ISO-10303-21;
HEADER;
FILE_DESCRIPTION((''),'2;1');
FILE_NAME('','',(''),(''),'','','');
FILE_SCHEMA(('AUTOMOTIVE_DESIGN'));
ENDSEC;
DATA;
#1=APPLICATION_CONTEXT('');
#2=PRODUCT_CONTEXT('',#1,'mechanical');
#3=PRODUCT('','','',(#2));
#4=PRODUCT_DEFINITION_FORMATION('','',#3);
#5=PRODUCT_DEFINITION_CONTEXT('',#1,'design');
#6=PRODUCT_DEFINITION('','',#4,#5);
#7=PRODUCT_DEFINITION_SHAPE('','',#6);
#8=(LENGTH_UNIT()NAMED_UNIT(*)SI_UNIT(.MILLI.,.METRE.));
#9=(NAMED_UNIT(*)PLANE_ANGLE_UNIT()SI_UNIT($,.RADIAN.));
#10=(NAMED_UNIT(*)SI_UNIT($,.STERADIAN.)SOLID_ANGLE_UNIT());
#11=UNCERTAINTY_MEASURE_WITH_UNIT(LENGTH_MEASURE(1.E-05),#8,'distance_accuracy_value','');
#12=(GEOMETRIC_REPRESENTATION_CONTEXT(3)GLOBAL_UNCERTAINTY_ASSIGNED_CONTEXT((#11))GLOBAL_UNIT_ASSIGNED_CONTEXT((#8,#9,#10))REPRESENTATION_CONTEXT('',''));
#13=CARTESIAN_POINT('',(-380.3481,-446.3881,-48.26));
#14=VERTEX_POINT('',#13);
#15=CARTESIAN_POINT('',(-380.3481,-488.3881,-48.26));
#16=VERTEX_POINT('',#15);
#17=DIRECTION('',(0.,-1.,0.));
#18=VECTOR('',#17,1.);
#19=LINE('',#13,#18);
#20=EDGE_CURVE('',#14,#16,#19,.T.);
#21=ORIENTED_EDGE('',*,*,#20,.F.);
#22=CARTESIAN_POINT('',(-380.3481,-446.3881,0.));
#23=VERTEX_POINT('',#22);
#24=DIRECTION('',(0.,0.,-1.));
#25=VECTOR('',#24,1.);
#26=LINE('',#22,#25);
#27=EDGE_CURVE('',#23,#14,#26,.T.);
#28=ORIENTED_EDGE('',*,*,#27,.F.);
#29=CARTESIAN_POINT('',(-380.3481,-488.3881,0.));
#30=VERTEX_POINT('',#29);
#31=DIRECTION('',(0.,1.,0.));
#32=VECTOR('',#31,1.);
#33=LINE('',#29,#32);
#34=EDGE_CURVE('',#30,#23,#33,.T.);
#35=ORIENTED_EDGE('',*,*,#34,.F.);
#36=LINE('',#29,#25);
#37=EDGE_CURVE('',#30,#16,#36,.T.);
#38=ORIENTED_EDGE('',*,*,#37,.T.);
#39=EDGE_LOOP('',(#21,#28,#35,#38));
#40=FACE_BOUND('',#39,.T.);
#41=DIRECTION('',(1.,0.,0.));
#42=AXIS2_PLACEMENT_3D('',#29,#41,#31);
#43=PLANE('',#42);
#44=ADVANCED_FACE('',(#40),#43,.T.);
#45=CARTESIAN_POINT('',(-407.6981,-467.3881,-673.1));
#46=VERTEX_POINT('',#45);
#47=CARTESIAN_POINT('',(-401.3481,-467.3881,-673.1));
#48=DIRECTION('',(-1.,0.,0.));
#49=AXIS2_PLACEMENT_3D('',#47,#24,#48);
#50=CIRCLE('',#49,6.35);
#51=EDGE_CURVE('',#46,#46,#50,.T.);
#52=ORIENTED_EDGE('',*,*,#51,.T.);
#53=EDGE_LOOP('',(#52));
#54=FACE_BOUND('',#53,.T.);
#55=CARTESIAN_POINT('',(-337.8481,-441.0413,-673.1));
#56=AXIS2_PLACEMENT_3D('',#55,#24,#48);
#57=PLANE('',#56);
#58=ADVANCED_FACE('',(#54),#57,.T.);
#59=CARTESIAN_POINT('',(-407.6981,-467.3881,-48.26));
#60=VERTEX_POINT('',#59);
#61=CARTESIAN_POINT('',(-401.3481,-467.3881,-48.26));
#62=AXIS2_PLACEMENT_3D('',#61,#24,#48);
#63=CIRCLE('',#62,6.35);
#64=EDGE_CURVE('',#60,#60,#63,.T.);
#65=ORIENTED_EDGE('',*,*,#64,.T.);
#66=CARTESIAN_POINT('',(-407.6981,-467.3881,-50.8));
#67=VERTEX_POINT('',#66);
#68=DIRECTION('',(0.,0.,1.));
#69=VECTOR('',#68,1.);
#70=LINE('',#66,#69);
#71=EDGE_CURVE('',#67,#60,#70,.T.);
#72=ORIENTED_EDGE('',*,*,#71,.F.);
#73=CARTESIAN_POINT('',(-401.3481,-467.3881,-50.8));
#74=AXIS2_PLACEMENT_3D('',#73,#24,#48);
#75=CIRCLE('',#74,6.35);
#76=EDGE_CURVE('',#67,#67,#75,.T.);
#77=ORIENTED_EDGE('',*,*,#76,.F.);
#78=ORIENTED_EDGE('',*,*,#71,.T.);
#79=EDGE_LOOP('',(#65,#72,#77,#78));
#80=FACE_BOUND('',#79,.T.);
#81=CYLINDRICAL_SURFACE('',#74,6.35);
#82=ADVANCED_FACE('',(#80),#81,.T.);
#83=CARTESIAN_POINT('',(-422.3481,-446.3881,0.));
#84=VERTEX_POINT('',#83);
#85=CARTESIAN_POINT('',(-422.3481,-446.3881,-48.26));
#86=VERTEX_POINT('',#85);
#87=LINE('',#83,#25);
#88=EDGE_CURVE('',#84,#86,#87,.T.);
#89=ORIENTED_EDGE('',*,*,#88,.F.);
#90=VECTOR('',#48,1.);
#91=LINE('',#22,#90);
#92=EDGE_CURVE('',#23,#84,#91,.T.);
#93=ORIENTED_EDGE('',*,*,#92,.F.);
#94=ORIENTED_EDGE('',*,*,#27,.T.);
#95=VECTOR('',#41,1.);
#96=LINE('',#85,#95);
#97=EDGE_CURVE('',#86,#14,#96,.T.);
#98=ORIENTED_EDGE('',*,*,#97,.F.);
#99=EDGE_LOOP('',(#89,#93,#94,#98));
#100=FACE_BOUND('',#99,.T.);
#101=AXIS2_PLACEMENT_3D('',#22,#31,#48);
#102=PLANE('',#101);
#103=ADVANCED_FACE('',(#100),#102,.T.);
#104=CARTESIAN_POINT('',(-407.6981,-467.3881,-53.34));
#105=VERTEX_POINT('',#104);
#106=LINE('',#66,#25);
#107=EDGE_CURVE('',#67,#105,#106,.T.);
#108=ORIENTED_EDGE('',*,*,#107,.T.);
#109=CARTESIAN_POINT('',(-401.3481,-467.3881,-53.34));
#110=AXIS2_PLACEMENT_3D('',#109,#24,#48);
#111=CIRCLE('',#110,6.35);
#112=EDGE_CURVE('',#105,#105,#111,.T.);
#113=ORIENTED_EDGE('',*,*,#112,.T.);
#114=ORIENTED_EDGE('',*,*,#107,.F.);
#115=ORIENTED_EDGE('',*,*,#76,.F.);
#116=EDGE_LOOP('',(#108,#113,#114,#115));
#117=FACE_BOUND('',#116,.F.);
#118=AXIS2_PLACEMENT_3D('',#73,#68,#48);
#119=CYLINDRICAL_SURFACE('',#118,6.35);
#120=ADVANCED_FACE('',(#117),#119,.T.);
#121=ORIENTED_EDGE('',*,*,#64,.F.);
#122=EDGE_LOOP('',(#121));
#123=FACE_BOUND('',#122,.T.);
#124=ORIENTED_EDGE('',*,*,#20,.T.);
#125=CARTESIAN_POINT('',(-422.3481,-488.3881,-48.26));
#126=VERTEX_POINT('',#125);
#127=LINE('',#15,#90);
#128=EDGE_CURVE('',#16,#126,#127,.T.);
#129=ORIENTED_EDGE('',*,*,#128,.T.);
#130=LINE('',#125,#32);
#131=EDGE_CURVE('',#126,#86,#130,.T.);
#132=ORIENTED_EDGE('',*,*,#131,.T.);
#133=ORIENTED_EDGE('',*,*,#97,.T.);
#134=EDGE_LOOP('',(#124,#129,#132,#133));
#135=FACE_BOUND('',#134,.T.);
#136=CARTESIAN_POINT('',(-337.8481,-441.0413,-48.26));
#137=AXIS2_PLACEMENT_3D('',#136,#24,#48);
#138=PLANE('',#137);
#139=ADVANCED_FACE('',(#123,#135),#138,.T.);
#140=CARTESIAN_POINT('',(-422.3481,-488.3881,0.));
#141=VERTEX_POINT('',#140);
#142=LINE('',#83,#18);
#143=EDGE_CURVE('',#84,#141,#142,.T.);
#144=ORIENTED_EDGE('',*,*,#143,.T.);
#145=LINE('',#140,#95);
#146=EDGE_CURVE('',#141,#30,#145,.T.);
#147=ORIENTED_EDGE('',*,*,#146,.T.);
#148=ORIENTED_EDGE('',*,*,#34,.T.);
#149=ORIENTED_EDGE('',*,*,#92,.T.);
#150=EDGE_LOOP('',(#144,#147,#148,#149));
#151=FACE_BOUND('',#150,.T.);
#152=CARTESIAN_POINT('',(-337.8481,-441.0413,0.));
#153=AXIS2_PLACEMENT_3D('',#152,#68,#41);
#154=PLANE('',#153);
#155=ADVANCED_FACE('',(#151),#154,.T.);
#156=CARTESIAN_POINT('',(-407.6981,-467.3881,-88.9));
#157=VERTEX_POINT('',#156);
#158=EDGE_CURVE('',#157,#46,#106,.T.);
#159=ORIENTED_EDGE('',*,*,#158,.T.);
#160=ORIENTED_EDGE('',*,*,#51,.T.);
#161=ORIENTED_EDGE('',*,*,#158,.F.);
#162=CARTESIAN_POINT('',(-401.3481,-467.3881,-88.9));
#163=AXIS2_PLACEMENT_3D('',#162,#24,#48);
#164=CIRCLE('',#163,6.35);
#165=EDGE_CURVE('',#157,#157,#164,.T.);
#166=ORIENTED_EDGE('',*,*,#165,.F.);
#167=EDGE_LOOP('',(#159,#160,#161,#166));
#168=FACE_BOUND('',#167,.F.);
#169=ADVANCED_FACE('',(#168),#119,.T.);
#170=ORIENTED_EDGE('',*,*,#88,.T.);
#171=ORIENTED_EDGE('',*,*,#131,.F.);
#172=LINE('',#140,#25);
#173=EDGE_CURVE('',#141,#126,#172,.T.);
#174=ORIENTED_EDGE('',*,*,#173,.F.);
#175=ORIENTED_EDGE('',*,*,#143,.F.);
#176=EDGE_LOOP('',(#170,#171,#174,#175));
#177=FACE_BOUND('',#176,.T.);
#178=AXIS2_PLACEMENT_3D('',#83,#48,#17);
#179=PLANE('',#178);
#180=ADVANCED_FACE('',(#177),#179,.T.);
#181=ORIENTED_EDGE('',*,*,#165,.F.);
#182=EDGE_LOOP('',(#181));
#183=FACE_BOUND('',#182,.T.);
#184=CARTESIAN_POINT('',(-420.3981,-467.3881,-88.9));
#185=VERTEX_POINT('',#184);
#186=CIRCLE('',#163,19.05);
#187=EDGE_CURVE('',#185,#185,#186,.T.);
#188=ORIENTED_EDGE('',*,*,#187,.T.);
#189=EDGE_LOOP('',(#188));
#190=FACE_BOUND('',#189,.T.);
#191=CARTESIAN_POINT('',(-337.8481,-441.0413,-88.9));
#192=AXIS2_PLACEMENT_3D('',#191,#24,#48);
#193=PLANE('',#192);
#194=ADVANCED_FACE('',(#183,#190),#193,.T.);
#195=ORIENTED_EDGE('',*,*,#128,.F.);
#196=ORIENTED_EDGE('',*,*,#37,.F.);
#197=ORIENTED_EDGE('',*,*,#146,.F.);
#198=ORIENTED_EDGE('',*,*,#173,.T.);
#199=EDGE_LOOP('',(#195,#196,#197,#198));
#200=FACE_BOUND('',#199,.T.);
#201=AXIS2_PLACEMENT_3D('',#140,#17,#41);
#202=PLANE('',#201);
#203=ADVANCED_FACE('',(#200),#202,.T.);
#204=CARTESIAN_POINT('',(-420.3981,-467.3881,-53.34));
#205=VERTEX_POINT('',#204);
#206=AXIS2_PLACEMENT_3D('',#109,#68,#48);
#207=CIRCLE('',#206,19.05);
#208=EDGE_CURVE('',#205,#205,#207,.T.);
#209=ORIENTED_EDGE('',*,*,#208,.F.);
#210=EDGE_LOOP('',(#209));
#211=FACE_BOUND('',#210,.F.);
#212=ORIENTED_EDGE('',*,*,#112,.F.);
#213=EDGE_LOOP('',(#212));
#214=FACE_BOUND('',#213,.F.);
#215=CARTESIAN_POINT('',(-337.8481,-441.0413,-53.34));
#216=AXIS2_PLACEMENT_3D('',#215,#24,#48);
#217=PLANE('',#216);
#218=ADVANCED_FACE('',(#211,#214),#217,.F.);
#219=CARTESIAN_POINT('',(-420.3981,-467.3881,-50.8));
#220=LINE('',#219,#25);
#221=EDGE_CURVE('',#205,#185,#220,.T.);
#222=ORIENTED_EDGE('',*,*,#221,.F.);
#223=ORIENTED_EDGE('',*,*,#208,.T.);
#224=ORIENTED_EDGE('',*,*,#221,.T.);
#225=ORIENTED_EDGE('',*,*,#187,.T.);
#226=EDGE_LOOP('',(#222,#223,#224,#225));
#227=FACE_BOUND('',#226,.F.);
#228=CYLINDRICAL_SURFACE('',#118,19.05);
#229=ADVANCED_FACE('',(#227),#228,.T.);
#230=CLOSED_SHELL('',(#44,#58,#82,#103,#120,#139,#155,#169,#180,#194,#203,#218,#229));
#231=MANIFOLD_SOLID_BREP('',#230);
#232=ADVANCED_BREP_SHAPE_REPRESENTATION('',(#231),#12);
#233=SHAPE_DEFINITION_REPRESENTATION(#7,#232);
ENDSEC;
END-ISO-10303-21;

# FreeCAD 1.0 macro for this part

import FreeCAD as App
import Part
import Sketcher
from FreeCAD import Vector
Q = App.Units.Quantity


def add_polygon(sketch, points):
    """Adds a closed chain of lines whose ends are joined by coincident constraints."""
    first, n = sketch.GeometryCount, len(points)
    for a, b in zip(points, points[1:] + points[:1]):
        sketch.addGeometry(Part.LineSegment(App.Vector(*a, 0), App.Vector(*b, 0)), False)
    for i in range(n):
        sketch.addConstraint(Sketcher.Constraint("Coincident", first + i, 2, first + (i + 1) % n, 1))

doc = App.newDocument("Part")
body = doc.addObject("PartDesign::Body", "Body")

sketch1 = body.newObject("Sketcher::SketchObject", "Sketch")
sketch1.AttachmentSupport = (doc.getObject("XY_Plane"), [""])
sketch1.MapMode = "FlatFace"
add_polygon(sketch1, [(-422, -446), (-422, -488), (-380, -488), (-380, -446)])
sketch1.addConstraint([
    Sketcher.Constraint("Vertical", 0),
    Sketcher.Constraint("Horizontal", 1),
    Sketcher.Constraint("Vertical", 2),
    Sketcher.Constraint("Horizontal", 3),
    Sketcher.Constraint("Equal", 3, 0),
    Sketcher.Constraint("DistanceX", 1, 1, 1, 2, Q("42 mm")),
    Sketcher.Constraint("DistanceX", 0, 2, -1, 1, Q("422.348 mm")),
    Sketcher.Constraint("DistanceY", 0, 2, -1, 1, Q("488.388 mm")),
])
pad1 = body.newObject("PartDesign::Pad", "Pad")
pad1.Profile = sketch1
pad1.Length = Q("2 in")
pad1.Reversed = True

sketch2 = body.newObject("Sketcher::SketchObject", "Sketch001")
sketch2.AttachmentSupport = (doc.getObject("XY_Plane"), [""])
sketch2.MapMode = "FlatFace"
sketch2.AttachmentOffset = App.Placement(Vector(0, 0, -2 * 25.4), App.Rotation())
sketch2.addGeometry(Part.Circle(Vector(-401, -467, 0), Vector(0, 0, 1), 6), False)
sketch2.addConstraint([
    Sketcher.Constraint("Diameter", 0, Q("0.5 in")),
    Sketcher.Constraint("DistanceX", 0, 3, -1, 1, Q("15.8011 in")),
    Sketcher.Constraint("DistanceY", 0, 3, -1, 1, Q("18.4011 in")),
])
pad2 = body.newObject("PartDesign::Pad", "Pad001")
pad2.Profile = sketch2
pad2.Length = Q("24.5 in")
pad2.Reversed = True

sketch3 = body.newObject("Sketcher::SketchObject", "Sketch002")
sketch3.AttachmentSupport = (doc.getObject("XY_Plane"), [""])
sketch3.MapMode = "FlatFace"
sketch3.AttachmentOffset = App.Placement(Vector(0, 0, -2 * 25.4), App.Rotation())
sketch3.addGeometry([
    Part.Circle(Vector(-401, -467, 0), Vector(0, 0, 1), 19),
    Part.Circle(Vector(-401, -467, 0), Vector(0, 0, 1), 6),
], False)
sketch3.addConstraint([
    Sketcher.Constraint("Coincident", 1, 3, 0, 3),
    Sketcher.Constraint("Diameter", 0, Q("1.5 in")),
    Sketcher.Constraint("Diameter", 1, Q("0.5 in")),
    Sketcher.Constraint("DistanceX", 0, 3, -1, 1, Q("15.8011 in")),
    Sketcher.Constraint("DistanceY", 0, 3, -1, 1, Q("18.4011 in")),
])
pad3 = body.newObject("PartDesign::Pad", "Pad002")
pad3.Profile = sketch3
pad3.Length = Q("1.5 in")
pad3.Reversed = True

sketch4 = body.newObject("Sketcher::SketchObject", "Sketch003")
sketch4.AttachmentSupport = (doc.getObject("XY_Plane"), [""])
sketch4.MapMode = "FlatFace"
sketch4.AttachmentOffset = App.Placement(Vector(0, 0, -2 * 25.4), App.Rotation())
add_polygon(sketch4, [(-380, -446), (-380, -488), (-422, -488), (-422, -446)])
sketch4.addGeometry(Part.Circle(Vector(-401, -467, 0), Vector(0, 0, 1), 6), False)
sketch4.addConstraint([
    Sketcher.Constraint("Vertical", 0),
    Sketcher.Constraint("Horizontal", 1),
    Sketcher.Constraint("Vertical", 2),
    Sketcher.Constraint("Horizontal", 3),
    Sketcher.Constraint("Equal", 3, 0),
    Sketcher.Constraint("Diameter", 4, Q("0.5 in")),
    Sketcher.Constraint("DistanceX", 1, 2, 1, 1, Q("42 mm")),
    Sketcher.Constraint("DistanceX", 4, 3, -1, 1, Q("15.8011 in")),
    Sketcher.Constraint("DistanceY", 4, 3, -1, 1, Q("18.4011 in")),
    Sketcher.Constraint("DistanceX", 0, 2, -1, 1, Q("380.348 mm")),
    Sketcher.Constraint("DistanceY", 0, 2, -1, 1, Q("488.388 mm")),
])
pocket1 = body.newObject("PartDesign::Pocket", "Pocket")
pocket1.Profile = sketch4
pocket1.Length = Q("0.2 in")
pocket1.Midplane = True

doc.recompute()
